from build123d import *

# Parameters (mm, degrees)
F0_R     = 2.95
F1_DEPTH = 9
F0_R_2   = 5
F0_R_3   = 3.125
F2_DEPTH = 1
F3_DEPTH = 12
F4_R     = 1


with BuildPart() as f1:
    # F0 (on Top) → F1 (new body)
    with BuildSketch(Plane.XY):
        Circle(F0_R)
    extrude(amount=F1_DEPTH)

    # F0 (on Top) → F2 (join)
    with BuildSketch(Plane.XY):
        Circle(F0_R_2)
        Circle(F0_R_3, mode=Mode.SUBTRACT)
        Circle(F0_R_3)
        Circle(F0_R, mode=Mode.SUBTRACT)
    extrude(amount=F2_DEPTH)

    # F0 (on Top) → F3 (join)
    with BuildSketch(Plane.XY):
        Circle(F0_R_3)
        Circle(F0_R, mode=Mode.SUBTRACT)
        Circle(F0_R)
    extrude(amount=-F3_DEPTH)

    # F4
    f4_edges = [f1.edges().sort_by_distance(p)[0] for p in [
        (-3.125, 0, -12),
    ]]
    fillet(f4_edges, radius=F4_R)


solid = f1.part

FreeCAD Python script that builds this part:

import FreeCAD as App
import Part
import Sketcher
from FreeCAD import Vector


def edges_at(feature, points):
    """Names of the edges that pass closest to the given points."""
    edges = feature.Shape.Edges
    near = lambda p: min(range(len(edges)), key=lambda i: edges[i].distToShape(Part.Vertex(*p))[0])
    return sorted({f"Edge{near(p) + 1}" for p in points})

doc = App.newDocument("Part")
body = doc.addObject("PartDesign::Body", "Body")

sketch1 = body.newObject("Sketcher::SketchObject", "Sketch")
sketch1.AttachmentSupport = (doc.getObject("XY_Plane"), [""])
sketch1.MapMode = "FlatFace"
sketch1.addGeometry(Part.Circle(Vector(0, 0, 0), Vector(0, 0, 1), 3), False)
sketch1.addConstraint([
    Sketcher.Constraint("Coincident", 0, 3, -1, 1),
    Sketcher.Constraint("Diameter", 0, 5.9),
])
pad1 = body.newObject("PartDesign::Pad", "Pad")
pad1.Profile = sketch1
pad1.Length = 9

sketch2 = body.newObject("Sketcher::SketchObject", "Sketch001")
sketch2.AttachmentSupport = (doc.getObject("XY_Plane"), [""])
sketch2.MapMode = "FlatFace"
sketch2.addGeometry([
    Part.Circle(Vector(0, 0, 0), Vector(0, 0, 1), 5),
    Part.Circle(Vector(0, 0, 0), Vector(0, 0, 1), 3),
], False)
sketch2.addConstraint([
    Sketcher.Constraint("Coincident", 0, 3, -1, 1),
    Sketcher.Constraint("Coincident", 1, 3, -1, 1),
    Sketcher.Constraint("Diameter", 0, 10.0),
    Sketcher.Constraint("Diameter", 1, 5.9),
])
pad2 = body.newObject("PartDesign::Pad", "Pad001")
pad2.Profile = sketch2
pad2.Length = 1

sketch3 = body.newObject("Sketcher::SketchObject", "Sketch002")
sketch3.AttachmentSupport = (doc.getObject("XY_Plane"), [""])
sketch3.MapMode = "FlatFace"
sketch3.addGeometry(Part.Circle(Vector(0, 0, 0), Vector(0, 0, 1), 3.1), False)
sketch3.addConstraint([
    Sketcher.Constraint("Coincident", 0, 3, -1, 1),
    Sketcher.Constraint("Diameter", 0, 6.25),
])
pad3 = body.newObject("PartDesign::Pad", "Pad002")
pad3.Profile = sketch3
pad3.Length = 12
pad3.Reversed = True
doc.recompute()

fillet = body.newObject("PartDesign::Fillet", "Fillet")
fillet.Base = (pad3, edges_at(pad3, [(-3.125, 0, -12)]))
fillet.Radius = 1

doc.recompute()
